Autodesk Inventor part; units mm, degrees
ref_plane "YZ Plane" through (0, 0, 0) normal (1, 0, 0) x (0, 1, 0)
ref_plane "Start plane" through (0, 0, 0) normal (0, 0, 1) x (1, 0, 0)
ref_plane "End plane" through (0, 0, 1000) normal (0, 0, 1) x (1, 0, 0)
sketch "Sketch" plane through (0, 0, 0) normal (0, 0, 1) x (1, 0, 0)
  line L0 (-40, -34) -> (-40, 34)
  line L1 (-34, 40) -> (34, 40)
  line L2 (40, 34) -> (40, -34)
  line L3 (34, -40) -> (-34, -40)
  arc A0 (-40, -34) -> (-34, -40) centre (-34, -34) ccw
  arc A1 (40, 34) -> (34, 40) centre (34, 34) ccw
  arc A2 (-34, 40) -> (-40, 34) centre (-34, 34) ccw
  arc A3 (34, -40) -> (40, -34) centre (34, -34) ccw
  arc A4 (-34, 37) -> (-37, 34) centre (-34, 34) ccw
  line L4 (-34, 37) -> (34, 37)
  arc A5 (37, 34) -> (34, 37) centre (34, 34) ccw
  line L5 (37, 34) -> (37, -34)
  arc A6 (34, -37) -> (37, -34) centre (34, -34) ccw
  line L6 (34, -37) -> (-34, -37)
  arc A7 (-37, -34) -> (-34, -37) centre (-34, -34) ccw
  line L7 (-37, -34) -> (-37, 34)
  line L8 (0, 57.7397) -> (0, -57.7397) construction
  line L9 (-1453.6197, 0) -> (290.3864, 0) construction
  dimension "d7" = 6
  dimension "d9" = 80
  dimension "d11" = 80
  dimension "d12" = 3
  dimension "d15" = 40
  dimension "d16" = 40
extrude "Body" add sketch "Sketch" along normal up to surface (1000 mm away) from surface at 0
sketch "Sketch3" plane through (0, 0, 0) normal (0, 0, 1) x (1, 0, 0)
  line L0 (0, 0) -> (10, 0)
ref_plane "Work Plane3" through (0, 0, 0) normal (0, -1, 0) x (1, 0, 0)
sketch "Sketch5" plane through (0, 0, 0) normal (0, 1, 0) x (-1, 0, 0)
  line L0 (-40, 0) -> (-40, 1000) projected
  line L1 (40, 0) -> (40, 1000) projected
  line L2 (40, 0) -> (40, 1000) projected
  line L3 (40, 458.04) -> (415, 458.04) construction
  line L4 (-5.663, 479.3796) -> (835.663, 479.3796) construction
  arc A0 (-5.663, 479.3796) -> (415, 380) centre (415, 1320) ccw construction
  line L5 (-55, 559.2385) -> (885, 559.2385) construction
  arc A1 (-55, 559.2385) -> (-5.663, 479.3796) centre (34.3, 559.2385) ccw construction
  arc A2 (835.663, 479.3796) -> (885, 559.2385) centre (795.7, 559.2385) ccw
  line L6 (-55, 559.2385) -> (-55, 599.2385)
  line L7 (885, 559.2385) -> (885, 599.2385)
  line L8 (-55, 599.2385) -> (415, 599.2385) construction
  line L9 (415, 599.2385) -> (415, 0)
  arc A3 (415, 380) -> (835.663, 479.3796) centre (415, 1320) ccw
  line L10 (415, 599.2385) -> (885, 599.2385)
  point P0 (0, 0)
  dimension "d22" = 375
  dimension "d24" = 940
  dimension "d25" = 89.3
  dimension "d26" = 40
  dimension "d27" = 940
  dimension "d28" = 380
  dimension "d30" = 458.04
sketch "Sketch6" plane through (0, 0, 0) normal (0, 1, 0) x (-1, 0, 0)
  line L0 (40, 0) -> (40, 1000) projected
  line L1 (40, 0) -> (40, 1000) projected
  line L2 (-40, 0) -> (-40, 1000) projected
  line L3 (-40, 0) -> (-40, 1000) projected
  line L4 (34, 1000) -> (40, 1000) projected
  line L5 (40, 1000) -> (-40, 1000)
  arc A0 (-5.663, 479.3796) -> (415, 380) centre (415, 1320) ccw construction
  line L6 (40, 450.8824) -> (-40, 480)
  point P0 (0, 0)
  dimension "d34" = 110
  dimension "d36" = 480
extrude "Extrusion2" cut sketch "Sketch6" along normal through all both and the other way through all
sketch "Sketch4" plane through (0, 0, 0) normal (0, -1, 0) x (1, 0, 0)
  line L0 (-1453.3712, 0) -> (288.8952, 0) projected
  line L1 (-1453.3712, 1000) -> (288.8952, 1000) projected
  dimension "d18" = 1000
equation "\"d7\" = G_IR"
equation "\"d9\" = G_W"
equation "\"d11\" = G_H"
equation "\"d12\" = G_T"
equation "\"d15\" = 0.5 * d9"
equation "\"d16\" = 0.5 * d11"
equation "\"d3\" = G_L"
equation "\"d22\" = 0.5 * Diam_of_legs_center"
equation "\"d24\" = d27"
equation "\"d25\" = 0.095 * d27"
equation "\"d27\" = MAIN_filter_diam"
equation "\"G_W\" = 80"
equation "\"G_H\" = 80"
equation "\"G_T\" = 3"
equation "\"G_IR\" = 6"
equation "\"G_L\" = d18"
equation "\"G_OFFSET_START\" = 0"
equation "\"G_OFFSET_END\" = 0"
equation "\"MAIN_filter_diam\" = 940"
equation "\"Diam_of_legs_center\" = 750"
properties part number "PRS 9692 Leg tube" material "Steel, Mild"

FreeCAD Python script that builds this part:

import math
import FreeCAD as App
import Part
import Sketcher

V = App.Vector
Q = App.Units.Quantity


def add_polygon(sketch, points):
    """Adds a closed chain of lines whose ends are joined by coincident constraints."""
    first, n = sketch.GeometryCount, len(points)
    for a, b in zip(points, points[1:] + points[:1]):
        sketch.addGeometry(Part.LineSegment(App.Vector(*a, 0), App.Vector(*b, 0)), False)
    for i in range(n):
        sketch.addConstraint(Sketcher.Constraint("Coincident", first + i, 2, first + (i + 1) % n, 1))

doc = App.newDocument("Part")
body = doc.addObject("PartDesign::Body", "Body")

sketch1 = body.newObject("Sketcher::SketchObject", "Sketch")
sketch1.AttachmentSupport = (doc.getObject("XY_Plane"), [""])
sketch1.MapMode = "FlatFace"
sketch1.addGeometry(Part.LineSegment(V(-40, 34, 0), V(-40, -34, 0)), False)
sketch1.addGeometry(Part.ArcOfCircle(Part.Circle(V(-34, -34, 0), V(0, 0, 1), 6), math.radians(180), math.radians(270)), False)
sketch1.addGeometry(Part.LineSegment(V(-34, -40, 0), V(34, -40, 0)), False)
sketch1.addGeometry(Part.ArcOfCircle(Part.Circle(V(34, -34, 0), V(0, 0, 1), 6), math.radians(-90), math.radians(0)), False)
sketch1.addGeometry(Part.LineSegment(V(40, -34, 0), V(40, 34, 0)), False)
sketch1.addGeometry(Part.ArcOfCircle(Part.Circle(V(34, 34, 0), V(0, 0, 1), 6), math.radians(0), math.radians(90)), False)
sketch1.addGeometry(Part.LineSegment(V(34, 40, 0), V(-34, 40, 0)), False)
sketch1.addGeometry(Part.ArcOfCircle(Part.Circle(V(-34, 34, 0), V(0, 0, 1), 6), math.radians(90), math.radians(180)), False)
sketch1.addGeometry(Part.ArcOfCircle(Part.Circle(V(-34, 34, 0), V(0, 0, 1), 3), math.radians(90), math.radians(180)), False)
sketch1.addGeometry(Part.LineSegment(V(-34, 37, 0), V(34, 37, 0)), False)
sketch1.addGeometry(Part.ArcOfCircle(Part.Circle(V(34, 34, 0), V(0, 0, 1), 3), math.radians(0), math.radians(90)), False)
sketch1.addGeometry(Part.LineSegment(V(37, 34, 0), V(37, -34, 0)), False)
sketch1.addGeometry(Part.ArcOfCircle(Part.Circle(V(34, -34, 0), V(0, 0, 1), 3), math.radians(-90), math.radians(0)), False)
sketch1.addGeometry(Part.LineSegment(V(34, -37, 0), V(-34, -37, 0)), False)
sketch1.addGeometry(Part.ArcOfCircle(Part.Circle(V(-34, -34, 0), V(0, 0, 1), 3), math.radians(180), math.radians(270)), False)
sketch1.addGeometry(Part.LineSegment(V(-37, -34, 0), V(-37, 34, 0)), False)
sketch1.addConstraint(Sketcher.Constraint("Tangent", 0, 2, 1, 1))
sketch1.addConstraint(Sketcher.Constraint("Tangent", 1, 2, 2, 1))
sketch1.addConstraint(Sketcher.Constraint("Tangent", 2, 2, 3, 1))
sketch1.addConstraint(Sketcher.Constraint("Tangent", 3, 2, 4, 1))
sketch1.addConstraint(Sketcher.Constraint("Tangent", 4, 2, 5, 1))
sketch1.addConstraint(Sketcher.Constraint("Tangent", 5, 2, 6, 1))
sketch1.addConstraint(Sketcher.Constraint("Tangent", 6, 2, 7, 1))
sketch1.addConstraint(Sketcher.Constraint("Tangent", 7, 2, 0, 1))
sketch1.addConstraint(Sketcher.Constraint("Tangent", 8, 1, 9, 1))
sketch1.addConstraint(Sketcher.Constraint("Tangent", 9, 2, 10, 2))
sketch1.addConstraint(Sketcher.Constraint("Tangent", 10, 1, 11, 1))
sketch1.addConstraint(Sketcher.Constraint("Tangent", 11, 2, 12, 2))
sketch1.addConstraint(Sketcher.Constraint("Tangent", 12, 1, 13, 1))
sketch1.addConstraint(Sketcher.Constraint("Tangent", 13, 2, 14, 2))
sketch1.addConstraint(Sketcher.Constraint("Tangent", 14, 1, 15, 1))
sketch1.addConstraint(Sketcher.Constraint("Tangent", 15, 2, 8, 2))
sketch1.addConstraint(Sketcher.Constraint("Vertical", 0))
sketch1.addConstraint(Sketcher.Constraint("Horizontal", 2))
sketch1.addConstraint(Sketcher.Constraint("Vertical", 4))
sketch1.addConstraint(Sketcher.Constraint("Horizontal", 6))
sketch1.addConstraint(Sketcher.Constraint("Horizontal", 9))
sketch1.addConstraint(Sketcher.Constraint("Vertical", 11))
sketch1.addConstraint(Sketcher.Constraint("Horizontal", 13))
sketch1.addConstraint(Sketcher.Constraint("Vertical", 15))
sketch1.addConstraint(Sketcher.Constraint("Coincident", 8, 3, 7, 3))
sketch1.addConstraint(Sketcher.Constraint("Coincident", 10, 3, 5, 3))
sketch1.addConstraint(Sketcher.Constraint("Coincident", 12, 3, 3, 3))
sketch1.addConstraint(Sketcher.Constraint("Equal", 1, 3))
sketch1.addConstraint(Sketcher.Constraint("Equal", 3, 5))
sketch1.addConstraint(Sketcher.Constraint("Equal", 5, 7))
sketch1.addConstraint(Sketcher.Constraint("Equal", 12, 14))
sketch1.addConstraint(Sketcher.Constraint("Symmetric", 1, 3, 5, 3, -1, 1))
sketch1.addConstraint(Sketcher.Constraint("Equal", 13, 0))
sketch1.addConstraint(Sketcher.Constraint("Radius", 1, 6.0))
sketch1.addConstraint(Sketcher.Constraint("Radius", 8, 3.0))
sketch1.addConstraint(Sketcher.Constraint("DistanceX", 0, 2, -1, 1, 40.0))
pad1 = body.newObject("PartDesign::Pad", "Pad")
pad1.Profile = sketch1
pad1.Length = 1000

sketch2 = body.newObject("Sketcher::SketchObject", "Sketch001")
sketch2.AttachmentSupport = (doc.getObject("XZ_Plane"), [""])
sketch2.MapMode = "FlatFace"
add_polygon(sketch2, [(40, 480), (-40, 450.8824), (-40, 1000), (40, 1000)])
sketch2.addConstraint(Sketcher.Constraint("Vertical", 1))
sketch2.addConstraint(Sketcher.Constraint("Horizontal", 2))
sketch2.addConstraint(Sketcher.Constraint("Vertical", 3))
sketch2.addConstraint(Sketcher.Constraint("DistanceY", -1, 1, 3, 2, 480.0))
sketch2.addConstraint(Sketcher.Constraint("DistanceX", 2, 1, 2, 2, 80.0))
sketch2.addConstraint(Sketcher.Constraint("DistanceY", 3, 2, 3, 1, 520.0))
sketch2.addConstraint(Sketcher.Constraint("Angle", 0, Q("-160 deg")))
sketch2.addConstraint(Sketcher.Constraint("DistanceX", 0, 2, -1, 1, 40.0))
pocket1 = body.newObject("PartDesign::Pocket", "Pocket")
pocket1.Profile = sketch2
pocket1.Type = "ThroughAll"
pocket1.Midplane = True

doc.recompute()
